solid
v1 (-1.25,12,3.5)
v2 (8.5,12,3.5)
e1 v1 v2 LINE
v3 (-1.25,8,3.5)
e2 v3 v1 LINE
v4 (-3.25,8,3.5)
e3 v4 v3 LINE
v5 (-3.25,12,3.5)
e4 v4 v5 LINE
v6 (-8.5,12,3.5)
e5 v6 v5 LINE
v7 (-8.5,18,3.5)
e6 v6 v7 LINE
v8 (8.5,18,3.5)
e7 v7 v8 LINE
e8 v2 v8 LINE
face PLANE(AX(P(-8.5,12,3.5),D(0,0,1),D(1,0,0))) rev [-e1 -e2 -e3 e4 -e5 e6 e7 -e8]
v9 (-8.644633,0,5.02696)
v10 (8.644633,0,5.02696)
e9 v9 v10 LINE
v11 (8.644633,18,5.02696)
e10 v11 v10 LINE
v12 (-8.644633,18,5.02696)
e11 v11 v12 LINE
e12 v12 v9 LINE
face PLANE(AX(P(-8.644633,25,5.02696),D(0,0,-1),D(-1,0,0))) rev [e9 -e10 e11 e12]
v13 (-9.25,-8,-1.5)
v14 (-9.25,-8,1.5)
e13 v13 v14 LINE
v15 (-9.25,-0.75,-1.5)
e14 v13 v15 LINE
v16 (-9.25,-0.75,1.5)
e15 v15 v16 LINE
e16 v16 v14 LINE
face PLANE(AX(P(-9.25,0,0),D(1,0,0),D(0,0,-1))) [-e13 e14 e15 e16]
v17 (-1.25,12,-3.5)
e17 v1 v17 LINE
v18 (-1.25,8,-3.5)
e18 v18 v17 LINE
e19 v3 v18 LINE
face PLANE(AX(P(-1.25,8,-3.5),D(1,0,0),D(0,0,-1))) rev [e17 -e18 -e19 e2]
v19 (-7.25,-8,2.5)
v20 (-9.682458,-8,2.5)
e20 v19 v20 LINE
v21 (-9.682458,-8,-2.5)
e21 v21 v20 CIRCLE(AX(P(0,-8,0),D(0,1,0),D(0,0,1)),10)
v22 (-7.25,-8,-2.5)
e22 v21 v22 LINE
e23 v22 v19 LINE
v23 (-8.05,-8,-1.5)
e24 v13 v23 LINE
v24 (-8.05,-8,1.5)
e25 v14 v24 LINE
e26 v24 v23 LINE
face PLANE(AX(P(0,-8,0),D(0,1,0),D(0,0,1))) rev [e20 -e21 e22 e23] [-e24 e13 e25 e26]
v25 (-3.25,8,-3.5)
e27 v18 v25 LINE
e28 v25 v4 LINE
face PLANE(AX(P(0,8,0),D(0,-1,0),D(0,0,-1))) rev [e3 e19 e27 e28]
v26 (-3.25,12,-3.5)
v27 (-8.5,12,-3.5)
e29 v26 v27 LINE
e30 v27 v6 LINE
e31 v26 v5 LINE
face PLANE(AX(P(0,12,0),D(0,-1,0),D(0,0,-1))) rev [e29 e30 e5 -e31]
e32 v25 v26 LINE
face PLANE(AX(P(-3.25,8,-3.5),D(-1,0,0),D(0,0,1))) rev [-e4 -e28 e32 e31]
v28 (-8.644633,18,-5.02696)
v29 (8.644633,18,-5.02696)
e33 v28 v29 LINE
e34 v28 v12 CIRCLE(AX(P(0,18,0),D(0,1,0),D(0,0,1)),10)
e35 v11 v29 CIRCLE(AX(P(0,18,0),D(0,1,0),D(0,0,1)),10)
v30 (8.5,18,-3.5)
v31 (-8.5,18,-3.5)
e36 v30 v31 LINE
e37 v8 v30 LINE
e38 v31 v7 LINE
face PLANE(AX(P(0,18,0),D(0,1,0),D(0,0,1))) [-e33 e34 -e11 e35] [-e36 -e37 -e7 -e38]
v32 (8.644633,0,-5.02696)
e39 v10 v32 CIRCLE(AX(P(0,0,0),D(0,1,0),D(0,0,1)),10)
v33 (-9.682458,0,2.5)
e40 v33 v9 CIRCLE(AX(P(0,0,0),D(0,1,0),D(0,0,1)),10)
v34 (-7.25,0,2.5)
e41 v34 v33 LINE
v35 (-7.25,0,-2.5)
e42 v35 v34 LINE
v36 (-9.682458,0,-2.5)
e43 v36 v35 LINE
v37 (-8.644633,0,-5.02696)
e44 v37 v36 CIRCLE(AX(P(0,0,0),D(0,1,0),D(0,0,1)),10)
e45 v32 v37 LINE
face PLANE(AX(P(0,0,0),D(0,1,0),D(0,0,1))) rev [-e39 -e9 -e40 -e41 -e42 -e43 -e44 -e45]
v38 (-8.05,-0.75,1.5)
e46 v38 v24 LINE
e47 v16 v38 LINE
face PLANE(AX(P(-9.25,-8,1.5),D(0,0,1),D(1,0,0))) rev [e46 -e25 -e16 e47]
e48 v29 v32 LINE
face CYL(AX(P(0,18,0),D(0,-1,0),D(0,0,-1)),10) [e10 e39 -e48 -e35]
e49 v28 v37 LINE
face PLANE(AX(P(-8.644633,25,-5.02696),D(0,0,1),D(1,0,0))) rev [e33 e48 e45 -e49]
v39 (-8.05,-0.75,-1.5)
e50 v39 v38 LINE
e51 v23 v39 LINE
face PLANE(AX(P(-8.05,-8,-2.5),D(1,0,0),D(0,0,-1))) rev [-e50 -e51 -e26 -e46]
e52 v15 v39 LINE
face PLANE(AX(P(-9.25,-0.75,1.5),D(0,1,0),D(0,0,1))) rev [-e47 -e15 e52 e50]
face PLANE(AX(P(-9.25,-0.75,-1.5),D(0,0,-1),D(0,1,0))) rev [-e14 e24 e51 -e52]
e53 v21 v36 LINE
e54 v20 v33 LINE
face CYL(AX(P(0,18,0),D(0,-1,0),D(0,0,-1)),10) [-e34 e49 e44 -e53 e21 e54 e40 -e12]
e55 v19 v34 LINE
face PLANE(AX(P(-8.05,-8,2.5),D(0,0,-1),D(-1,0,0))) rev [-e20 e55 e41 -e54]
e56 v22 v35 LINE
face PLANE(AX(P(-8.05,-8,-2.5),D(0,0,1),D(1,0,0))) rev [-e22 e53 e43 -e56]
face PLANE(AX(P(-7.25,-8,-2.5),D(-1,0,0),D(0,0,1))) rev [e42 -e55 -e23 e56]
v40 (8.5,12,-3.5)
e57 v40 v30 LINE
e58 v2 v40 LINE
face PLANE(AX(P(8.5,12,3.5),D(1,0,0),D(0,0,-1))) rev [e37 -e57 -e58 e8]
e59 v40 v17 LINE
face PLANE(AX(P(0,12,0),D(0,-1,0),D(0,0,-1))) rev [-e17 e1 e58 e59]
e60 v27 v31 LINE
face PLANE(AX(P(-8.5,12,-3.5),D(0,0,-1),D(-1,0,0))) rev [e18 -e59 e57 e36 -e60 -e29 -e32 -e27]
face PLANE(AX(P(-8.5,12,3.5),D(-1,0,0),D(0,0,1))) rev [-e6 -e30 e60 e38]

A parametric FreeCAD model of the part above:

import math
import FreeCAD as App
import Part
import Sketcher

V = App.Vector


def add_polygon(sketch, points):
    """Adds a closed chain of lines whose ends are joined by coincident constraints."""
    first, n = sketch.GeometryCount, len(points)
    for a, b in zip(points, points[1:] + points[:1]):
        sketch.addGeometry(Part.LineSegment(App.Vector(*a, 0), App.Vector(*b, 0)), False)
    for i in range(n):
        sketch.addConstraint(Sketcher.Constraint("Coincident", first + i, 2, first + (i + 1) % n, 1))

doc = App.newDocument("Part")
body = doc.addObject("PartDesign::Body", "Body")

# Sketch on XZ plane
sketch1 = body.newObject("Sketcher::SketchObject", "Sketch")
sketch1.AttachmentSupport = (doc.getObject("XZ_Plane"), [""])
sketch1.MapMode = "FlatFace"
sketch1.addGeometry(Part.Circle(V(0, 0, 0), V(0, 0, 1), 10), False)
sketch1.addConstraint([
    Sketcher.Constraint("Coincident", 0, 3, -1, 1),
    Sketcher.Constraint("Diameter", 0, 20.0),
])
pad1 = body.newObject("PartDesign::Pad", "Pad")
pad1.Profile = sketch1
pad1.Length = 18
pad1.Reversed = True

# Sketch on XZ plane
sketch2 = body.newObject("Sketcher::SketchObject", "Sketch001")
sketch2.AttachmentSupport = (doc.getObject("XZ_Plane"), [""])
sketch2.MapMode = "FlatFace"
sketch2.AttachmentOffset = App.Placement(V(0, 0, -18), App.Rotation())
add_polygon(sketch2, [(-8, -4), (-8, 4), (8, 4), (8, -4)])  # lines 0-3
sketch2.addConstraint([
    Sketcher.Constraint("Vertical", 0),
    Sketcher.Constraint("Horizontal", 1),
    Sketcher.Constraint("Vertical", 2),
    Sketcher.Constraint("Horizontal", 3),
    Sketcher.Constraint("Symmetric", 0, 2, 2, 2, -1, 1),
    Sketcher.Constraint("DistanceX", 1, 1, 1, 2, 17.0),
    Sketcher.Constraint("DistanceY", 0, 1, 0, 2, 7.0),
])
pocket1 = body.newObject("PartDesign::Pocket", "Pocket")
pocket1.Profile = sketch2
pocket1.Length = 6
pocket1.Reversed = True

# Sketch on XZ plane
sketch3 = body.newObject("Sketcher::SketchObject", "Sketch002")
sketch3.AttachmentSupport = (doc.getObject("XZ_Plane"), [""])
sketch3.MapMode = "FlatFace"
sketch3.AttachmentOffset = App.Placement(V(0, 0, -12), App.Rotation())
add_polygon(sketch3, [(-3.2, -3.5), (-3.2, 3.5), (-1.2, 3.5), (-1.2, -3.5)])  # lines 0-3
sketch3.addConstraint([
    Sketcher.Constraint("Vertical", 0),
    Sketcher.Constraint("Horizontal", 1),
    Sketcher.Constraint("Vertical", 2),
    Sketcher.Constraint("Horizontal", 3),
    Sketcher.Constraint("DistanceX", 1, 1, 1, 2, 2.0),
    Sketcher.Constraint("DistanceY", 0, 1, 0, 2, 7.0),
    Sketcher.Constraint("DistanceY", -1, 1, 0, 2, 3.5),
    Sketcher.Constraint("DistanceX", 0, 2, -1, 1, 3.25),
])
pocket2 = body.newObject("PartDesign::Pocket", "Pocket001")
pocket2.Profile = sketch3
pocket2.Length = 4
pocket2.Reversed = True

# Sketch on XZ plane
sketch4 = body.newObject("Sketcher::SketchObject", "Sketch003")
sketch4.AttachmentSupport = (doc.getObject("XZ_Plane"), [""])
sketch4.MapMode = "FlatFace"
sketch4.addGeometry([
    Part.LineSegment(V(-9, 5, 0), V(9, 5, 0)),
    Part.ArcOfCircle(Part.Circle(V(0, 0, 0), V(0, 0, 1), 10), math.radians(30), math.radians(150)),
    Part.LineSegment(V(9, -5, 0), V(-9, -5, 0)),
    Part.ArcOfCircle(Part.Circle(V(0, 0, 0), V(0, 0, 1), 10), math.radians(-150), math.radians(-30)),
], False)
sketch4.addConstraint([
    Sketcher.Constraint("Coincident", 0, 1, 1, 2),
    Sketcher.Constraint("Coincident", 1, 1, 0, 2),
    Sketcher.Constraint("Coincident", 2, 1, 3, 2),
    Sketcher.Constraint("Coincident", 3, 1, 2, 2),
    Sketcher.Constraint("Horizontal", 0),
    Sketcher.Constraint("Horizontal", 2),
    Sketcher.Constraint("Coincident", 1, 3, -1, 1),
    Sketcher.Constraint("Coincident", 3, 3, -1, 1),
    Sketcher.Constraint("Equal", 1, 3),
    Sketcher.Constraint("Vertical", 1, 1, 2, 1),
    Sketcher.Constraint("Radius", 1, 10.0),
    Sketcher.Constraint("DistanceX", 0, 1, 0, 2, 17.289265),
])
pocket3 = body.newObject("PartDesign::Pocket", "Pocket002")
pocket3.Profile = sketch4
pocket3.Length = 25
body2 = doc.addObject("PartDesign::Body", "Body001")

# Sketch on XZ plane
sketch5 = body2.newObject("Sketcher::SketchObject", "Sketch004")
sketch5.AttachmentSupport = (doc.getObject("XZ_Plane001"), [""])
sketch5.MapMode = "FlatFace"
add_polygon(sketch5, [(-7.2, -2.5), (-7.2, 2.5), (-8.1, 2.5), (-8.1, -2.5)])  # lines 0-3
sketch5.addConstraint([
    Sketcher.Constraint("Vertical", 0),
    Sketcher.Constraint("Horizontal", 1),
    Sketcher.Constraint("Vertical", 2),
    Sketcher.Constraint("Horizontal", 3),
    Sketcher.Constraint("DistanceY", 0, 1, 0, 2, 5.0),
    Sketcher.Constraint("DistanceX", 1, 2, 1, 1, 0.8),
    Sketcher.Constraint("DistanceY", -1, 1, 0, 2, 2.5),
    Sketcher.Constraint("DistanceX", 0, 2, -1, 1, 7.25),
])
pad2 = body2.newObject("PartDesign::Pad", "Pad001")
pad2.Profile = sketch5
pad2.Length = 8

# Sketch on YZ plane
sketch6 = body2.newObject("Sketcher::SketchObject", "Sketch005")
sketch6.AttachmentSupport = (doc.getObject("YZ_Plane001"), [""])
sketch6.MapMode = "FlatFace"
sketch6.AttachmentOffset = App.Placement(V(0, 0, -8.05), App.Rotation())
add_polygon(sketch6, [(0, -2.5), (-8, -2.5), (-8, -1.5), (-0.8, -1.5), (-0.8, 1.5), (-8, 1.5), (-8, 2.5), (0, 2.5)])  # lines 0-7
sketch6.addConstraint([
    Sketcher.Constraint("Horizontal", 0),
    Sketcher.Constraint("Vertical", 1),
    Sketcher.Constraint("Horizontal", 2),
    Sketcher.Constraint("Vertical", 3),
    Sketcher.Constraint("Horizontal", 4),
    Sketcher.Constraint("Vertical", 5),
    Sketcher.Constraint("Horizontal", 6),
    Sketcher.Constraint("Vertical", 7),
    Sketcher.Constraint("Symmetric", 6, 2, 7, 2, -1, 1),
    Sketcher.Constraint("Symmetric", 1, 2, 4, 2, -1),
    Sketcher.Constraint("DistanceX", 0, 2, 0, 1, 8.0),
    Sketcher.Constraint("DistanceY", 1, 1, 1, 2, 1.0),
    Sketcher.Constraint("DistanceY", 3, 1, 3, 2, 3.0),
    Sketcher.Constraint("DistanceX", 2, 1, 2, 2, 7.25),
])
pad3 = body2.newObject("PartDesign::Pad", "Pad002")
pad3.Profile = sketch6
pad3.Length = 1.2
pad3.Reversed = True
doc.recompute()

boolean = body.newObject("PartDesign::Boolean", "Boolean")
boolean.Type = "Fuse"
boolean.addObjects([body2])

# Sketch on YZ plane
sketch7 = body.newObject("Sketcher::SketchObject", "Sketch006")
sketch7.AttachmentSupport = (doc.getObject("YZ_Plane"), [""])
sketch7.MapMode = "FlatFace"
sketch7.AttachmentOffset = App.Placement(V(0, 0, -9.25), App.Rotation())
add_polygon(sketch7, [(0, -2), (-8, -2), (-8, 2), (0, 2)])  # lines 0-3
sketch7.addConstraint([
    Sketcher.Constraint("Horizontal", 0),
    Sketcher.Constraint("Vertical", 1),
    Sketcher.Constraint("Horizontal", 2),
    Sketcher.Constraint("Vertical", 3),
    Sketcher.Constraint("Symmetric", 2, 2, 3, 2, -1, 1),
    Sketcher.Constraint("DistanceX", 0, 2, 0, 1, 8.0),
    Sketcher.Constraint("DistanceY", 1, 1, 1, 2, 5.0),
])
pad4 = body.newObject("PartDesign::Pad", "Pad003")
pad4.Profile = sketch7
pad4.Length = 0.8
pad4.Reversed = True

# Sketch on XZ plane
sketch8 = body.newObject("Sketcher::SketchObject", "Sketch007")
sketch8.AttachmentSupport = (doc.getObject("XZ_Plane"), [""])
sketch8.MapMode = "FlatFace"
sketch8.addGeometry([
    Part.LineSegment(V(-9.68, -2.5, 0), V(-10.05, -2.5, 0)),
    Part.LineSegment(V(-10.05, -2.5, 0), V(-10.05, 2.5, 0)),
    Part.LineSegment(V(-10.05, 2.5, 0), V(-9.68, 2.5, 0)),
    Part.ArcOfCircle(Part.Circle(V(0, 0, 0), V(0, 0, 1), 10), math.radians(166), math.radians(194)),
], False)
sketch8.addConstraint([
    Sketcher.Constraint("Coincident", 0, 2, 1, 1),
    Sketcher.Constraint("Coincident", 1, 2, 2, 1),
    Sketcher.Constraint("Coincident", 2, 2, 3, 1),
    Sketcher.Constraint("Coincident", 3, 2, 0, 1),
    Sketcher.Constraint("Horizontal", 0),
    Sketcher.Constraint("Vertical", 1),
    Sketcher.Constraint("Horizontal", 2),
    Sketcher.Constraint("Coincident", 3, 3, -1, 1),
    Sketcher.Constraint("Vertical", 2, 2, 3, 2),
    Sketcher.Constraint("Radius", 3, 10.0),
    Sketcher.Constraint("DistanceY", 1, 1, 1, 2, 5.0),
    Sketcher.Constraint("DistanceX", 0, 2, -1, 1, 10.05),
])
pocket4 = body.newObject("PartDesign::Pocket", "Pocket003")
pocket4.Profile = sketch8
pocket4.Type = "UpToFirst"
pocket4.Reversed = True

doc.recompute()
